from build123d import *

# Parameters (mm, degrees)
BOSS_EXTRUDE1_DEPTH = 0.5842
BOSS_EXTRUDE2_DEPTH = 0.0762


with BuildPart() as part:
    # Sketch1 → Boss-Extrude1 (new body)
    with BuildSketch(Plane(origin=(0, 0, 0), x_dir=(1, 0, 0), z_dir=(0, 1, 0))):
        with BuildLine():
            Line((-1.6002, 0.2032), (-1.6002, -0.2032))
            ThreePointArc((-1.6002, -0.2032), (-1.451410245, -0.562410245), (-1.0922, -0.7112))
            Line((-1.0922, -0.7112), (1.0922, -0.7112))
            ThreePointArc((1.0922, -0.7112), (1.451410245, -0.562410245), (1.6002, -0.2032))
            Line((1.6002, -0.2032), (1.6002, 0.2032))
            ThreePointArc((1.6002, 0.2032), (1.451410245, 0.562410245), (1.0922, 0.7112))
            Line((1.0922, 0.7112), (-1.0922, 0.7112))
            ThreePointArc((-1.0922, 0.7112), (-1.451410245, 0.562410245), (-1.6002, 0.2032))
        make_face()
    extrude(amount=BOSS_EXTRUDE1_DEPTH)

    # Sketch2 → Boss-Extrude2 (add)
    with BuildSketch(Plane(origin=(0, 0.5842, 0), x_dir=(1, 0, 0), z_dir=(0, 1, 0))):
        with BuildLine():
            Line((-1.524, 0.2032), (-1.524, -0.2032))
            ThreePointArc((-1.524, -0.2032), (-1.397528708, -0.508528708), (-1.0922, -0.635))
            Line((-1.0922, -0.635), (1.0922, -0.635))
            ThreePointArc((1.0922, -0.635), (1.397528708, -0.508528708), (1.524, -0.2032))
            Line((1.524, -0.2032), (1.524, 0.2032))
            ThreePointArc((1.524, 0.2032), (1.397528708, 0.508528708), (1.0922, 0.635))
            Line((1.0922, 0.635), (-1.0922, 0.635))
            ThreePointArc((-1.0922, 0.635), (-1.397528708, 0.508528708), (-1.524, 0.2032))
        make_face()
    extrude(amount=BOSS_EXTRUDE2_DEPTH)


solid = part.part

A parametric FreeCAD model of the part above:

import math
import FreeCAD as App
import Part
import Sketcher
Q = App.Units.Quantity

doc = App.newDocument("Part")
body = doc.addObject("PartDesign::Body", "Body")

# Sketch on XZ plane
sketch1 = body.newObject("Sketcher::SketchObject", "Sketch")
sketch1.AttachmentSupport = (doc.getObject("XZ_Plane"), [""])
sketch1.MapMode = "FlatFace"
sketch1.addGeometry([
    Part.LineSegment(App.Vector(-1.6, -0.2, 0), App.Vector(-1.6, 0.2, 0)),  # 0
    Part.ArcOfCircle(Part.Circle(App.Vector(-1.09, 0.2, 0), App.Vector(0, 0, 1), 0.51), math.radians(90), math.radians(180)),  # 1
    Part.LineSegment(App.Vector(-1.09, 0.71, 0), App.Vector(1.09, 0.71, 0)),  # 2
    Part.ArcOfCircle(Part.Circle(App.Vector(1.09, 0.2, 0), App.Vector(0, 0, 1), 0.51), math.radians(0), math.radians(90)),  # 3
    Part.LineSegment(App.Vector(1.6, 0.2, 0), App.Vector(1.6, -0.2, 0)),  # 4
    Part.ArcOfCircle(Part.Circle(App.Vector(1.09, -0.2, 0), App.Vector(0, 0, 1), 0.51), math.radians(-90), math.radians(0)),  # 5
    Part.LineSegment(App.Vector(1.09, -0.71, 0), App.Vector(-1.09, -0.71, 0)),  # 6
    Part.ArcOfCircle(Part.Circle(App.Vector(-1.09, -0.2, 0), App.Vector(0, 0, 1), 0.51), math.radians(180), math.radians(270)),  # 7
], False)
sketch1.addConstraint([
    Sketcher.Constraint("Tangent", 0, 2, 1, 2),
    Sketcher.Constraint("Tangent", 1, 1, 2, 1),
    Sketcher.Constraint("Tangent", 2, 2, 3, 2),
    Sketcher.Constraint("Tangent", 3, 1, 4, 1),
    Sketcher.Constraint("Tangent", 4, 2, 5, 2),
    Sketcher.Constraint("Tangent", 5, 1, 6, 1),
    Sketcher.Constraint("Tangent", 6, 2, 7, 2),
    Sketcher.Constraint("Tangent", 7, 1, 0, 1),
    Sketcher.Constraint("Vertical", 0),
    Sketcher.Constraint("Horizontal", 2),
    Sketcher.Constraint("Vertical", 4),
    Sketcher.Constraint("Horizontal", 6),
    Sketcher.Constraint("Equal", 1, 3),
    Sketcher.Constraint("Equal", 3, 5),
    Sketcher.Constraint("Equal", 5, 7),
    Sketcher.Constraint("Symmetric", 1, 3, 5, 3, -1, 1),
    Sketcher.Constraint("Radius", 1, Q("0.02 in")),
    Sketcher.Constraint("DistanceX", 2, 1, 2, 2, Q("0.086 in")),
    Sketcher.Constraint("DistanceY", 0, 1, 0, 2, Q("0.016 in")),
])
pad1 = body.newObject("PartDesign::Pad", "Pad")
pad1.Profile = sketch1
pad1.Length = Q("0.023 in")
pad1.Reversed = True

# Sketch on XZ plane
sketch2 = body.newObject("Sketcher::SketchObject", "Sketch001")
sketch2.AttachmentSupport = (doc.getObject("XZ_Plane"), [""])
sketch2.MapMode = "FlatFace"
sketch2.AttachmentOffset = App.Placement(App.Vector(0, 0, -0.023 * 25.4), App.Rotation())
sketch2.addGeometry([
    Part.LineSegment(App.Vector(-1.52, -0.2, 0), App.Vector(-1.52, 0.2, 0)),  # 0
    Part.ArcOfCircle(Part.Circle(App.Vector(-1.09, 0.2, 0), App.Vector(0, 0, 1), 0.43), math.radians(90), math.radians(180)),  # 1
    Part.LineSegment(App.Vector(-1.09, 0.64, 0), App.Vector(1.09, 0.64, 0)),  # 2
    Part.ArcOfCircle(Part.Circle(App.Vector(1.09, 0.2, 0), App.Vector(0, 0, 1), 0.43), math.radians(0), math.radians(90)),  # 3
    Part.LineSegment(App.Vector(1.52, 0.2, 0), App.Vector(1.52, -0.2, 0)),  # 4
    Part.ArcOfCircle(Part.Circle(App.Vector(1.09, -0.2, 0), App.Vector(0, 0, 1), 0.43), math.radians(-90), math.radians(0)),  # 5
    Part.LineSegment(App.Vector(1.09, -0.64, 0), App.Vector(-1.09, -0.64, 0)),  # 6
    Part.ArcOfCircle(Part.Circle(App.Vector(-1.09, -0.2, 0), App.Vector(0, 0, 1), 0.43), math.radians(180), math.radians(270)),  # 7
], False)
sketch2.addConstraint([
    Sketcher.Constraint("Tangent", 0, 2, 1, 2),
    Sketcher.Constraint("Tangent", 1, 1, 2, 1),
    Sketcher.Constraint("Tangent", 2, 2, 3, 2),
    Sketcher.Constraint("Tangent", 3, 1, 4, 1),
    Sketcher.Constraint("Tangent", 4, 2, 5, 2),
    Sketcher.Constraint("Tangent", 5, 1, 6, 1),
    Sketcher.Constraint("Tangent", 6, 2, 7, 2),
    Sketcher.Constraint("Tangent", 7, 1, 0, 1),
    Sketcher.Constraint("Vertical", 0),
    Sketcher.Constraint("Horizontal", 2),
    Sketcher.Constraint("Vertical", 4),
    Sketcher.Constraint("Horizontal", 6),
    Sketcher.Constraint("Equal", 1, 3),
    Sketcher.Constraint("Equal", 3, 5),
    Sketcher.Constraint("Equal", 5, 7),
    Sketcher.Constraint("Symmetric", 1, 3, 5, 3, -1, 1),
    Sketcher.Constraint("Radius", 1, Q("0.017 in")),
    Sketcher.Constraint("DistanceX", 2, 1, 2, 2, Q("0.086 in")),
    Sketcher.Constraint("DistanceY", 0, 1, 0, 2, Q("0.016 in")),
])
pad2 = body.newObject("PartDesign::Pad", "Pad001")
pad2.Profile = sketch2
pad2.Length = Q("0.003 in")
pad2.Reversed = True

doc.recompute()
